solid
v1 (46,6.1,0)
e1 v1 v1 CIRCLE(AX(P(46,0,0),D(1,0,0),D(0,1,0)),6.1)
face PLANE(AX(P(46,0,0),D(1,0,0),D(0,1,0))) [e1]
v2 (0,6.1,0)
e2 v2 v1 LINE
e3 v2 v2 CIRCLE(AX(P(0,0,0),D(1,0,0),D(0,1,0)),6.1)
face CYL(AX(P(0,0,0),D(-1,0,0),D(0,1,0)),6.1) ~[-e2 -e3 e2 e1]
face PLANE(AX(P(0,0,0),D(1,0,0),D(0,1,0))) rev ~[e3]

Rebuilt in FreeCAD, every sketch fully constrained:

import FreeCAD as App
import Part
import Sketcher

V = App.Vector
Q = App.Units.Quantity

doc = App.newDocument("Part")
body = doc.addObject("PartDesign::Body", "Body")

# Sketch on YZ plane
sketch1 = doc.addObject("Sketcher::SketchObject", "Sketch")
body.addObject(sketch1)
sketch1.AttachmentSupport = (doc.YZ_Plane, [""])
sketch1.MapMode = "FlatFace"
sketch1.addGeometry(Part.Circle(V(0, 0, 0), V(0, 0, 1), 6), False)
sketch1.addConstraint([
    Sketcher.Constraint("Coincident", 0, 3, -1, 1),
    Sketcher.Constraint("Diameter", 0, Q("12.2 mm")),
])
pad1 = doc.addObject("PartDesign::Pad", "Pad")
body.addObject(pad1)
pad1.Profile = sketch1
pad1.Length = 46

doc.recompute()
